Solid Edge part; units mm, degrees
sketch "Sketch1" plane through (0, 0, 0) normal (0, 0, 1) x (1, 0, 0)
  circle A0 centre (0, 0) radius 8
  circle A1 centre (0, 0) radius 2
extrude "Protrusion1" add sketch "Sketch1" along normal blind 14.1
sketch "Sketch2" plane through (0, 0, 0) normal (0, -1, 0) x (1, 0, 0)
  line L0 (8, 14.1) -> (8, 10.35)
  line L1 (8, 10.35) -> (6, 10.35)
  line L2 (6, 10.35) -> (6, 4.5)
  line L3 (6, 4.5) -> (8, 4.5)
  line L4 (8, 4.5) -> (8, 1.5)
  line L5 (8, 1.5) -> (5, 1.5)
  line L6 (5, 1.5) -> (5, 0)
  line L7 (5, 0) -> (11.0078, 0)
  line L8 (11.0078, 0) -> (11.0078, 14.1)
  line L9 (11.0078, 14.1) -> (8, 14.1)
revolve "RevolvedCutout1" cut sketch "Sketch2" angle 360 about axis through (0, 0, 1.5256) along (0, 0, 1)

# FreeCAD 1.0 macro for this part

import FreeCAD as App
import Part
import Sketcher

V = App.Vector
Q = App.Units.Quantity

doc = App.newDocument("Part")
body = doc.addObject("PartDesign::Body", "Body")

sketch1 = body.newObject("Sketcher::SketchObject", "Sketch")
sketch1.AttachmentSupport = (doc.getObject("XY_Plane"), [""])
sketch1.MapMode = "FlatFace"
sketch1.addGeometry([
    Part.Circle(V(0, 0, 0), V(0, 0, 1), 8),
    Part.Circle(V(0, 0, 0), V(0, 0, 1), 2),
], False)
sketch1.addConstraint([
    Sketcher.Constraint("Coincident", 0, 3, -1, 1),
    Sketcher.Constraint("Coincident", 1, 3, -1, 1),
    Sketcher.Constraint("Diameter", 0, Q("16 mm")),
    Sketcher.Constraint("Diameter", 1, Q("4 mm")),
])
pad1 = body.newObject("PartDesign::Pad", "Pad")
pad1.Profile = sketch1
pad1.Length = 14.1

sketch2 = body.newObject("Sketcher::SketchObject", "Sketch001")
sketch2.AttachmentSupport = (doc.getObject("XZ_Plane"), [""])
sketch2.MapMode = "FlatFace"
sketch2.addGeometry([
    Part.LineSegment(V(11.0078, 14.1, 0), V(8, 14.1, 0)),
    Part.LineSegment(V(8, 14.1, 0), V(8, 10.35, 0)),
    Part.LineSegment(V(8, 10.35, 0), V(6, 10.35, 0)),
    Part.LineSegment(V(6, 10.35, 0), V(6, 4.5, 0)),
    Part.LineSegment(V(6, 4.5, 0), V(8, 4.5, 0)),
    Part.LineSegment(V(8, 4.5, 0), V(8, 1.5, 0)),
    Part.LineSegment(V(8, 1.5, 0), V(5, 1.5, 0)),
    Part.LineSegment(V(5, 1.5, 0), V(5, 0, 0)),
    Part.LineSegment(V(5, 0, 0), V(11.0078, 0, 0)),
    Part.LineSegment(V(11.0078, 0, 0), V(11.0078, 14.1, 0)),
], False)
sketch2.addConstraint([
    Sketcher.Constraint("Coincident", 0, 2, 1, 1),
    Sketcher.Constraint("Coincident", 1, 2, 2, 1),
    Sketcher.Constraint("Coincident", 2, 2, 3, 1),
    Sketcher.Constraint("Coincident", 3, 2, 4, 1),
    Sketcher.Constraint("Coincident", 4, 2, 5, 1),
    Sketcher.Constraint("Coincident", 5, 2, 6, 1),
    Sketcher.Constraint("Coincident", 6, 2, 7, 1),
    Sketcher.Constraint("Coincident", 7, 2, 8, 1),
    Sketcher.Constraint("Coincident", 8, 2, 9, 1),
    Sketcher.Constraint("Coincident", 9, 2, 0, 1),
    Sketcher.Constraint("Horizontal", 0),
    Sketcher.Constraint("Vertical", 1),
    Sketcher.Constraint("Horizontal", 2),
    Sketcher.Constraint("Vertical", 3),
    Sketcher.Constraint("Horizontal", 4),
    Sketcher.Constraint("Vertical", 5),
    Sketcher.Constraint("Horizontal", 6),
    Sketcher.Constraint("Vertical", 7),
    Sketcher.Constraint("Horizontal", 8),
    Sketcher.Constraint("Vertical", 9),
    Sketcher.Constraint("PointOnObject", 7, 2, -1),
    Sketcher.Constraint("Vertical", 1, 2, 4, 2),
    Sketcher.Constraint("Equal", 6, 5),
    Sketcher.Constraint("DistanceX", 2, 2, 2, 1, Q("2 mm")),
    Sketcher.Constraint("DistanceX", 6, 2, 6, 1, Q("3 mm")),
    Sketcher.Constraint("DistanceY", 7, 2, 7, 1, Q("1.5 mm")),
    Sketcher.Constraint("DistanceY", 9, 1, 9, 2, Q("14.1 mm")),
    Sketcher.Constraint("DistanceX", -1, 1, 0, 2, Q("8 mm")),
    Sketcher.Constraint("DistanceY", 1, 2, 1, 1, Q("3.75 mm")),
    Sketcher.Constraint("DistanceX", 0, 2, 0, 1, Q("3.0078 mm")),
])
groove = body.newObject("PartDesign::Groove", "Groove")
groove.Profile = sketch2
groove.ReferenceAxis = (sketch2, ["V_Axis"])
groove.Angle = 360

doc.recompute()
